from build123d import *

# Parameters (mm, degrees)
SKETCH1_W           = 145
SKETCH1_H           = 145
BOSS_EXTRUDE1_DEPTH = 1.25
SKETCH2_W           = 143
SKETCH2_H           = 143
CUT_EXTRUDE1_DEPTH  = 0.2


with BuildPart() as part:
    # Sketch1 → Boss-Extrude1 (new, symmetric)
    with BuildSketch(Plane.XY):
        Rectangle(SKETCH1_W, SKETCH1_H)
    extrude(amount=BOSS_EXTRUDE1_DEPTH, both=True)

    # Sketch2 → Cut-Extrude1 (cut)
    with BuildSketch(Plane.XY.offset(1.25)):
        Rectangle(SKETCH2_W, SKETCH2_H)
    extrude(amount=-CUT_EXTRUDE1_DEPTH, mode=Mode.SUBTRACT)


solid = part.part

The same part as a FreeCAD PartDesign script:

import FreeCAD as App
import Part
import Sketcher

V = App.Vector


def add_polygon(sketch, points):
    """Adds a closed chain of lines whose ends are joined by coincident constraints."""
    first, n = sketch.GeometryCount, len(points)
    for a, b in zip(points, points[1:] + points[:1]):
        sketch.addGeometry(Part.LineSegment(App.Vector(*a, 0), App.Vector(*b, 0)), False)
    for i in range(n):
        sketch.addConstraint(Sketcher.Constraint("Coincident", first + i, 2, first + (i + 1) % n, 1))

doc = App.newDocument("Part")
params = doc.addObject("Spreadsheet::Sheet", "Params")
for row, (alias, value) in enumerate([
    ("sketch1_width", "145 mm"),
    ("pad1_length", "2.5 mm"),
    ("sketch2_width", "143 mm"),
    ("pocket1_length", "0.2 mm"),
], start=1):
    params.set(f"A{row}", alias)
    params.set(f"B{row}", "=" + value)
    params.setAlias(f"B{row}", alias)

body = doc.addObject("PartDesign::Body", "Body")

sketch1 = doc.addObject("Sketcher::SketchObject", "Sketch")
body.addObject(sketch1)
sketch1.AttachmentSupport = (doc.XY_Plane, [""])
sketch1.MapMode = "FlatFace"
add_polygon(sketch1, [(-72.5, 72.5), (-72.5, -72.5), (72.5, -72.5), (72.5, 72.5)])
sketch1.addConstraint(Sketcher.Constraint("Vertical", 0))
sketch1.addConstraint(Sketcher.Constraint("Horizontal", 1))
sketch1.addConstraint(Sketcher.Constraint("Vertical", 2))
sketch1.addConstraint(Sketcher.Constraint("Horizontal", 3))
sketch1.addConstraint(Sketcher.Constraint("Symmetric", 0, 2, 2, 2, -1, 1))
sketch1.addConstraint(Sketcher.Constraint("Equal", 3, 0))
sketch1.addConstraint(Sketcher.Constraint("DistanceX", 1, 1, 1, 2, 145.0))
sketch1.setExpression("Constraints[10]", "Params.sketch1_width")
pad1 = doc.addObject("PartDesign::Pad", "Pad")
body.addObject(pad1)
pad1.Profile = sketch1
pad1.setExpression("Length", "Params.pad1_length")
pad1.Midplane = True

sketch2 = doc.addObject("Sketcher::SketchObject", "Sketch001")
body.addObject(sketch2)
sketch2.AttachmentSupport = (doc.XY_Plane, [""])
sketch2.MapMode = "FlatFace"
sketch2.AttachmentOffset = App.Placement(V(0, 0, 1.25), App.Rotation())
add_polygon(sketch2, [(-71.5, 71.5), (-71.5, -71.5), (71.5, -71.5), (71.5, 71.5)])
sketch2.addConstraint(Sketcher.Constraint("Vertical", 0))
sketch2.addConstraint(Sketcher.Constraint("Horizontal", 1))
sketch2.addConstraint(Sketcher.Constraint("Vertical", 2))
sketch2.addConstraint(Sketcher.Constraint("Horizontal", 3))
sketch2.addConstraint(Sketcher.Constraint("Symmetric", 0, 2, 2, 2, -1, 1))
sketch2.addConstraint(Sketcher.Constraint("Equal", 3, 0))
sketch2.addConstraint(Sketcher.Constraint("DistanceX", 1, 1, 1, 2, 143.0))
sketch2.setExpression("Constraints[10]", "Params.sketch2_width")
pocket1 = doc.addObject("PartDesign::Pocket", "Pocket")
body.addObject(pocket1)
pocket1.Profile = sketch2
pocket1.setExpression("Length", "Params.pocket1_length")

doc.recompute()
